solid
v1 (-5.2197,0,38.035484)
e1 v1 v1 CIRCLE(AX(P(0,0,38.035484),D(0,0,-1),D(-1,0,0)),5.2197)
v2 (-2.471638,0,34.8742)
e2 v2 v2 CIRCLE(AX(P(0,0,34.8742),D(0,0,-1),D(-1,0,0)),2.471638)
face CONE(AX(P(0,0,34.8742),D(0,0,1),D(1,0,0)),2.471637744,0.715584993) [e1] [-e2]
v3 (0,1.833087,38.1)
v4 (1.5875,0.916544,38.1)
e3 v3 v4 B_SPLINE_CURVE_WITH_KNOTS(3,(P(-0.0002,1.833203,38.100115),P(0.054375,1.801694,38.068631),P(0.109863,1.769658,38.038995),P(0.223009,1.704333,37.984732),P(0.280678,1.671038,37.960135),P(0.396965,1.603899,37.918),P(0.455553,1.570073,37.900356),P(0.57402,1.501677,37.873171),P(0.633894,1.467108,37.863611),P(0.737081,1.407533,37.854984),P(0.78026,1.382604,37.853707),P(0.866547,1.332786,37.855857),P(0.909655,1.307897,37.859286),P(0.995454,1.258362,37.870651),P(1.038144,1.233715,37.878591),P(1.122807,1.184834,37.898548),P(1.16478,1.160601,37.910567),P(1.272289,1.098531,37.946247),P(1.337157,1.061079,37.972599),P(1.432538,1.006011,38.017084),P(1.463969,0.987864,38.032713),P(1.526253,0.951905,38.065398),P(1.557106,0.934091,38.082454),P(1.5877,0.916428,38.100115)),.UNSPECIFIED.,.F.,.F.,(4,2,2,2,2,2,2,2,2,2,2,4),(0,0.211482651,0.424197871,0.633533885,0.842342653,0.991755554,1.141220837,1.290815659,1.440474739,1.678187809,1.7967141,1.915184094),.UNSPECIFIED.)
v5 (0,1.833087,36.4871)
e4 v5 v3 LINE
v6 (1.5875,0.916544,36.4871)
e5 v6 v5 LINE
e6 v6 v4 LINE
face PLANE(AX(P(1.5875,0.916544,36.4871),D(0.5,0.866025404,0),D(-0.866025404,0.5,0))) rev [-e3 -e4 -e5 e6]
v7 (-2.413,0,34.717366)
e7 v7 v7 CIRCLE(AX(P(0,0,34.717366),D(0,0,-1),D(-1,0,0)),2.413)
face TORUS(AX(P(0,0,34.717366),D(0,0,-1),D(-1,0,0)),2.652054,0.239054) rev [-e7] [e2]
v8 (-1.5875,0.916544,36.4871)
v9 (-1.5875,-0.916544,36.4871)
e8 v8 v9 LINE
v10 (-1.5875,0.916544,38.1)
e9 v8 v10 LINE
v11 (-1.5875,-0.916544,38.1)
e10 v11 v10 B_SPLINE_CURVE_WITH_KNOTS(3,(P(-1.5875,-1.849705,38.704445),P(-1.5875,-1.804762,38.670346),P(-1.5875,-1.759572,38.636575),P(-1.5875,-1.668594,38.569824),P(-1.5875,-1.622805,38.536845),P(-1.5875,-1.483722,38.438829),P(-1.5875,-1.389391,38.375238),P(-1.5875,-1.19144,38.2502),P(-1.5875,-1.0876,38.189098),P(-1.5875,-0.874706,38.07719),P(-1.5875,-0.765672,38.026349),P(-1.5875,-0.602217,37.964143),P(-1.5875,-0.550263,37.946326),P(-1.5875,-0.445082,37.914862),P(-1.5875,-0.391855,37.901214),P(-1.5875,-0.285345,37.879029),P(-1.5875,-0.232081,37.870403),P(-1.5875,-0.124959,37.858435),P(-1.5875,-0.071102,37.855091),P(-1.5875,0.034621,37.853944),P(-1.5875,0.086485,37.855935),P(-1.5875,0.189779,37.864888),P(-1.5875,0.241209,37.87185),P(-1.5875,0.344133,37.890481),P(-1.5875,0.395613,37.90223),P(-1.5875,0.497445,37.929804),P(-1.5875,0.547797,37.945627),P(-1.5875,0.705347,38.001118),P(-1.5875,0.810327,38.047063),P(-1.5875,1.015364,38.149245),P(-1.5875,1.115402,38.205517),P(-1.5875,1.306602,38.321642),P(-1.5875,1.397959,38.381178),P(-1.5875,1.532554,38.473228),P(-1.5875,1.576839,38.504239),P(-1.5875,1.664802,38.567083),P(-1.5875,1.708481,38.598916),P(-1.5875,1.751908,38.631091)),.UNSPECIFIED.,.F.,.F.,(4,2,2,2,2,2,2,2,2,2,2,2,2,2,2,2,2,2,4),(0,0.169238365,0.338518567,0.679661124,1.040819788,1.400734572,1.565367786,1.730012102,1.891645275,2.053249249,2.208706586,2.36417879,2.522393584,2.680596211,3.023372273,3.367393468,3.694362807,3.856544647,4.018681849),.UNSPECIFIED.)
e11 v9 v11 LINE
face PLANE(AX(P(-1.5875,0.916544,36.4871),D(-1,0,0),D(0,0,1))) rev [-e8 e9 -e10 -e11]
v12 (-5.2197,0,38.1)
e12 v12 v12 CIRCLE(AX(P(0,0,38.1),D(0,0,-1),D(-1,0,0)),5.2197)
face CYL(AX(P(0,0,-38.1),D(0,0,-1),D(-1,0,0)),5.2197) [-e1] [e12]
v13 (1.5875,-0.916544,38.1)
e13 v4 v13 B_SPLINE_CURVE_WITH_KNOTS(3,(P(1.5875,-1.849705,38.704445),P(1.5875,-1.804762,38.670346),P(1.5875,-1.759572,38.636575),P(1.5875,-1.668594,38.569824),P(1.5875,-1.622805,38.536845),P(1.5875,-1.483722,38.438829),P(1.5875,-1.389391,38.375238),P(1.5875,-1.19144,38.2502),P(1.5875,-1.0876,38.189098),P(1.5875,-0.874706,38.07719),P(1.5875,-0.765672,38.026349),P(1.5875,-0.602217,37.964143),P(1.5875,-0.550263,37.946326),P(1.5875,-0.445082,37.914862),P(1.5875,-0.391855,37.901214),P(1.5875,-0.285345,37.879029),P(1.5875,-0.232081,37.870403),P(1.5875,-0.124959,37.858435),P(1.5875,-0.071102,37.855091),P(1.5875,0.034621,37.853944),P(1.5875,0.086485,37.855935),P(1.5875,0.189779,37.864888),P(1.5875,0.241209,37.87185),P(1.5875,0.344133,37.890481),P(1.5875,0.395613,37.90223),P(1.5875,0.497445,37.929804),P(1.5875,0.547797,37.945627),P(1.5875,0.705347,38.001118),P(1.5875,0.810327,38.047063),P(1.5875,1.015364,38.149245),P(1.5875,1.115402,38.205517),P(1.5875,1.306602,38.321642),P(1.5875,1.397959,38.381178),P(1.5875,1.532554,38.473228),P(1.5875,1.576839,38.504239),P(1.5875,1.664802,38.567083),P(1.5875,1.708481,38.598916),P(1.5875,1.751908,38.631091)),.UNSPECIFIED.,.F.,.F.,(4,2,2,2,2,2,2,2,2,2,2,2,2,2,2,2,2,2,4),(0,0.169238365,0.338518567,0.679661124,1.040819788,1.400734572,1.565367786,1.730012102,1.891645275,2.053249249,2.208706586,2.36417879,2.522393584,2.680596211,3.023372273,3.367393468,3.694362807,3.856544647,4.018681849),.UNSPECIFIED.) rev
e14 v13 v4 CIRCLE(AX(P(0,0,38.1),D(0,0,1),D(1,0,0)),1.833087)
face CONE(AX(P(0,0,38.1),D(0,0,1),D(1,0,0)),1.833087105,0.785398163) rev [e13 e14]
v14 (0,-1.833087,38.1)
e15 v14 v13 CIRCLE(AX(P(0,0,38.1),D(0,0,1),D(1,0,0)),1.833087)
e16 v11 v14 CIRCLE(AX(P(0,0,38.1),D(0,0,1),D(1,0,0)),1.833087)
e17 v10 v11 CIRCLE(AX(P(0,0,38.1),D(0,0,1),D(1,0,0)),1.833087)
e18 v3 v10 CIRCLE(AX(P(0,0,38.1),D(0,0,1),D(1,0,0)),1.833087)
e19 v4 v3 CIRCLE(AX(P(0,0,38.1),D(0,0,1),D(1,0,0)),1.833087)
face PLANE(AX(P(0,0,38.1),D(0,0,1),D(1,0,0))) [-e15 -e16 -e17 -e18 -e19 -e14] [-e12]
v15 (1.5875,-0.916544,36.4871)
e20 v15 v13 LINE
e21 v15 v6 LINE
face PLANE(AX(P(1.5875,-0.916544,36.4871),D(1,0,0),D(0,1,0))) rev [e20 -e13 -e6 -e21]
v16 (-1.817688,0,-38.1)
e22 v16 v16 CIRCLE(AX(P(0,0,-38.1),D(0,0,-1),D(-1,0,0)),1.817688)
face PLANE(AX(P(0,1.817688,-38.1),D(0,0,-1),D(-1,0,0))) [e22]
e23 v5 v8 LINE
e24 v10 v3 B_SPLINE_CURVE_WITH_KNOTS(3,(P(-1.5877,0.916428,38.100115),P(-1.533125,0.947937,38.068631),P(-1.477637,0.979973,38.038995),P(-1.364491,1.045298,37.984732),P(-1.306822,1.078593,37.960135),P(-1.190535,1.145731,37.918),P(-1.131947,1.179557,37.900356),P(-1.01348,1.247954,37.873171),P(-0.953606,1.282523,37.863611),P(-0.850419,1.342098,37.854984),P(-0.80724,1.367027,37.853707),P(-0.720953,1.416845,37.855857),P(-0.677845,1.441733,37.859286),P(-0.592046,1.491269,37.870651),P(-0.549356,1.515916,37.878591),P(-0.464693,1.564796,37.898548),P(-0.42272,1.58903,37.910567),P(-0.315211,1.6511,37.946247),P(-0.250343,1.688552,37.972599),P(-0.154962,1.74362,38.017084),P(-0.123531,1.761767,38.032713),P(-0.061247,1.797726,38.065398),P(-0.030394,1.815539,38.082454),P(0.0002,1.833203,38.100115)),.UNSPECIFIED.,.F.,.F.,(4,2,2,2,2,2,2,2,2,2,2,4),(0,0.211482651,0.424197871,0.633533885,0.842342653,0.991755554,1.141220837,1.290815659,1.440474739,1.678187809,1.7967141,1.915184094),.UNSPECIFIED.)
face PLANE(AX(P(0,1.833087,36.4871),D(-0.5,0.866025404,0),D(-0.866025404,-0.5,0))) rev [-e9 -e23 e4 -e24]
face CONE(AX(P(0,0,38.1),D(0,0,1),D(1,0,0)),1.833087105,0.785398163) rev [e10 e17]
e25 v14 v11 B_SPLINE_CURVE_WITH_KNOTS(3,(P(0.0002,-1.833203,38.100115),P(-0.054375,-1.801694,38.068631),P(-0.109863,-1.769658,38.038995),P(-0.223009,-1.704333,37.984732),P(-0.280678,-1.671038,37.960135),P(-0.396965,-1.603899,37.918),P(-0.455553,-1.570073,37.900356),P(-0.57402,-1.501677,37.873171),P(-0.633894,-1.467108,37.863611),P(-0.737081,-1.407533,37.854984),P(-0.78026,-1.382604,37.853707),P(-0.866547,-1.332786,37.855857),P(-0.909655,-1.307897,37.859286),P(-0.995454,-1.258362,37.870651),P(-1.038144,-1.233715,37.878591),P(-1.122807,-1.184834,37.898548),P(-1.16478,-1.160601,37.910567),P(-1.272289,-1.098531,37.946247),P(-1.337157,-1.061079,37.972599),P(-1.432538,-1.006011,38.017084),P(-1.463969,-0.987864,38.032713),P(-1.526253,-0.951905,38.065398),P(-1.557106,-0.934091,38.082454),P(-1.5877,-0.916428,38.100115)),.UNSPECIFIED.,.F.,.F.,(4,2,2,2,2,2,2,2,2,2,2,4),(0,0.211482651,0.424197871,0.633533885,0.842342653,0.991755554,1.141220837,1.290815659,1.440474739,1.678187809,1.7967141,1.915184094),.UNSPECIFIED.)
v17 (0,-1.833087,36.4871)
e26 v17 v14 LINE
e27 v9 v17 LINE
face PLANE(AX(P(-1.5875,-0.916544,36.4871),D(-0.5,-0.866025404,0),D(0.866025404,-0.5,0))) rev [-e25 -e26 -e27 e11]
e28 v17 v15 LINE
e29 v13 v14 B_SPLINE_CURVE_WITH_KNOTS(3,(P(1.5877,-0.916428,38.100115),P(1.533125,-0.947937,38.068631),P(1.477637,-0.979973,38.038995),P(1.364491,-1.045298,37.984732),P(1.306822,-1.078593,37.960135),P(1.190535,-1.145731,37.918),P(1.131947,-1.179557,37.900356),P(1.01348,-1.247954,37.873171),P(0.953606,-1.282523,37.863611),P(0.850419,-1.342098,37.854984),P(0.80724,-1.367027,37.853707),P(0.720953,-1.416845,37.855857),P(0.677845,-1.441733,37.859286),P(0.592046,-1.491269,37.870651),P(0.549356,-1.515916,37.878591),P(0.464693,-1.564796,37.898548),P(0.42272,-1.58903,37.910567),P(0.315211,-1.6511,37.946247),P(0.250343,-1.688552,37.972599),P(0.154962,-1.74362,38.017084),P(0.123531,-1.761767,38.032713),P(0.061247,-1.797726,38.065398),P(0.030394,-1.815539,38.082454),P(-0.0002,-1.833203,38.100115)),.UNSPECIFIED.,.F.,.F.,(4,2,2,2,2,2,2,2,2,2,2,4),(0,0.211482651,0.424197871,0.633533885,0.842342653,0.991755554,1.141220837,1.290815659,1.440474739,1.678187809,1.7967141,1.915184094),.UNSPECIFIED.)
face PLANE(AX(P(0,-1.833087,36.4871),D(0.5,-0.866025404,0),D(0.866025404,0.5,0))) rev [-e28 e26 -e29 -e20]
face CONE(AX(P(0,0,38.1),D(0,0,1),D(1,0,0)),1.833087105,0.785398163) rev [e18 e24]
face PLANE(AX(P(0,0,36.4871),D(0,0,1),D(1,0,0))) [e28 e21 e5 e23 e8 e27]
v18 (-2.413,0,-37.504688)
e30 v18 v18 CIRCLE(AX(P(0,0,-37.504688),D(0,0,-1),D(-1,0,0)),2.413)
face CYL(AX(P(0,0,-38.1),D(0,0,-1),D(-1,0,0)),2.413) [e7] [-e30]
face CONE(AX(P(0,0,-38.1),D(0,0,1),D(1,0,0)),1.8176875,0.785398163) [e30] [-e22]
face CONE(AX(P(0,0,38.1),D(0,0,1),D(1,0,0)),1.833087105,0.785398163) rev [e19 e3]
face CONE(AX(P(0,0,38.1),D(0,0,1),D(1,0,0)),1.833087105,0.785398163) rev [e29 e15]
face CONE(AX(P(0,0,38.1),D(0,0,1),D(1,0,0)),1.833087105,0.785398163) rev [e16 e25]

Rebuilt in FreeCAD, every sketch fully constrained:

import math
import FreeCAD as App
import Part
import Sketcher
Q = App.Units.Quantity


def faces_at(feature, points):
    """Names of the faces that lie closest to the given points."""
    faces = feature.Shape.Faces
    near = lambda p: min(range(len(faces)), key=lambda i: faces[i].distToShape(Part.Vertex(*p))[0])
    return sorted({f"Face{near(p) + 1}" for p in points})

doc = App.newDocument("Part")
params = doc.addObject("Spreadsheet::Sheet", "Params")
for row, (alias, value) in enumerate([
    ("sketch1_height", "3 in"),
    ("revolution_angle", "360 deg"),
    ("pad1_length", "0.0635 in"),
    ("draft_angle", "45 deg"),
    ("pocket1_length", "0.0635 in"),
], start=1):
    params.set(f"A{row}", alias)
    params.set(f"B{row}", "=" + value)
    params.setAlias(f"B{row}", alias)

body = doc.addObject("PartDesign::Body", "Body")

sketch1 = body.newObject("Sketcher::SketchObject", "Sketch")
sketch1.AttachmentSupport = (doc.getObject("YZ_Plane"), [""])
sketch1.MapMode = "FlatFace"
sketch1.addGeometry([
    Part.LineSegment(App.Vector(2.47, 34.87, 0), App.Vector(5.22, 38.04, 0)),
    Part.LineSegment(App.Vector(5.22, 38.04, 0), App.Vector(5.22, 38.1, 0)),
    Part.LineSegment(App.Vector(5.22, 38.1, 0), App.Vector(0, 38.1, 0)),
    Part.LineSegment(App.Vector(0, 38.1, 0), App.Vector(0, -38.1, 0)),
    Part.LineSegment(App.Vector(0, -38.1, 0), App.Vector(1.82, -38.1, 0)),
    Part.LineSegment(App.Vector(1.82, -38.1, 0), App.Vector(2.41, -37.5, 0)),
    Part.LineSegment(App.Vector(2.41, -37.5, 0), App.Vector(2.41, 34.72, 0)),
    Part.ArcOfCircle(Part.Circle(App.Vector(2.65, 34.72, 0), App.Vector(0, 0, 1), 0.24), math.radians(139), math.radians(180)),
], False)
sketch1.addConstraint([
    Sketcher.Constraint("Coincident", 0, 2, 1, 1),
    Sketcher.Constraint("Coincident", 1, 2, 2, 1),
    Sketcher.Constraint("Coincident", 2, 2, 3, 1),
    Sketcher.Constraint("Coincident", 3, 2, 4, 1),
    Sketcher.Constraint("Coincident", 4, 2, 5, 1),
    Sketcher.Constraint("Coincident", 5, 2, 6, 1),
    Sketcher.Constraint("Tangent", 6, 2, 7, 2),
    Sketcher.Constraint("Tangent", 7, 1, 0, 1),
    Sketcher.Constraint("Vertical", 1),
    Sketcher.Constraint("Horizontal", 2),
    Sketcher.Constraint("Vertical", 3),
    Sketcher.Constraint("Horizontal", 4),
    Sketcher.Constraint("Vertical", 6),
    Sketcher.Constraint("Symmetric", 2, 2, 3, 2, -1, 1),
    Sketcher.Constraint("DistanceY", 3, 2, 3, 1, Q("3 in")),
    Sketcher.Constraint("Angle", 0, Q("49 deg")),
    Sketcher.Constraint("Angle", 5, Q("45 deg")),
    Sketcher.Constraint("DistanceX", 2, 2, 2, 1, Q("0.2055 in")),
    Sketcher.Constraint("DistanceX", -1, 1, 5, 2, Q("0.095 in")),
    Sketcher.Constraint("DistanceY", -1, 1, 7, 1, Q("1.373 in")),
    Sketcher.Constraint("Radius", 7, Q("0.239054 mm")),
    Sketcher.Constraint("Distance", 5, Q("0.841899 mm")),
])
sketch1.setExpression("Constraints[14]", "Params.sketch1_height")
revolution = body.newObject("PartDesign::Revolution", "Revolution")
revolution.Profile = sketch1
revolution.ReferenceAxis = (sketch1, ["V_Axis"])
revolution.setExpression("Angle", "Params.revolution_angle")
body2 = doc.addObject("PartDesign::Body", "Body001")

sketch2 = body2.newObject("Sketcher::SketchObject", "Sketch001")
sketch2.AttachmentSupport = (doc.getObject("XY_Plane001"), [""])
sketch2.MapMode = "FlatFace"
sketch2.AttachmentOffset = App.Placement(App.Vector(0, 0, 1.5 * 25.4), App.Rotation())
sketch2.addGeometry(Part.Circle(App.Vector(0, 0, 0), App.Vector(0, 0, 1), 1.8), False)
sketch2.addConstraint([
    Sketcher.Constraint("Coincident", 0, 3, -1, 1),
    Sketcher.Constraint("Diameter", 0, Q("3.666174 mm")),
])
pad1 = body2.newObject("PartDesign::Pad", "Pad")
pad1.Profile = sketch2
pad1.setExpression("Length", "Params.pad1_length")
pad1.Reversed = True
doc.recompute()

datumplane = body2.newObject("PartDesign::Plane", "DatumPlane")
datumplane.AttachmentSupport = (doc.getObject("XY_Plane001"), [""])
datumplane.MapMode = "FlatFace"
datumplane.AttachmentOffset = App.Placement(App.Vector(0, 0, 1.5 * 25.4), App.Rotation())
draft = body2.newObject("PartDesign::Draft", "Draft")
draft.Base = (pad1, faces_at(pad1, [(-1.833, 0, 37.294)]))
draft.NeutralPlane = (datumplane, [""])
draft.setExpression("Angle", "Params.draft_angle")
draft.Reversed = True
doc.recompute()

boolean = body.newObject("PartDesign::Boolean", "Boolean")
boolean.Type = "Cut"
boolean.addObjects([body2])

sketch3 = body.newObject("Sketcher::SketchObject", "Sketch002")
sketch3.AttachmentSupport = (doc.getObject("XY_Plane"), [""])
sketch3.MapMode = "FlatFace"
sketch3.AttachmentOffset = App.Placement(App.Vector(0, 0, 1.5 * 25.4), App.Rotation())
sketch3.addGeometry([
    Part.LineSegment(App.Vector(1.6, -0.9, 0), App.Vector(1.6, 0.9, 0)),
    Part.LineSegment(App.Vector(1.6, 0.9, 0), App.Vector(0, 1.8, 0)),
    Part.LineSegment(App.Vector(0, 1.8, 0), App.Vector(-1.6, 0.9, 0)),
    Part.LineSegment(App.Vector(-1.6, 0.9, 0), App.Vector(-1.6, -0.9, 0)),
    Part.LineSegment(App.Vector(-1.6, -0.9, 0), App.Vector(0, -1.8, 0)),
    Part.LineSegment(App.Vector(0, -1.8, 0), App.Vector(1.6, -0.9, 0)),
], False)
sketch3.addConstraint([
    Sketcher.Constraint("Coincident", 0, 2, 1, 1),
    Sketcher.Constraint("Coincident", 1, 2, 2, 1),
    Sketcher.Constraint("Coincident", 2, 2, 3, 1),
    Sketcher.Constraint("Coincident", 3, 2, 4, 1),
    Sketcher.Constraint("Coincident", 4, 2, 5, 1),
    Sketcher.Constraint("Coincident", 5, 2, 0, 1),
    Sketcher.Constraint("Vertical", 0),
    Sketcher.Constraint("Vertical", 3),
    Sketcher.Constraint("Symmetric", 0, 2, 3, 2, -1, 1),
    Sketcher.Constraint("Symmetric", 1, 2, 4, 2, -1, 1),
    Sketcher.Constraint("PointOnObject", 1, 2, -2),
    Sketcher.Constraint("Parallel", 2, 5),
    Sketcher.Constraint("Horizontal", 0, 2, 2, 2),
    Sketcher.Constraint("Angle", 1, Q("150 deg")),
    Sketcher.Constraint("DistanceX", -1, 1, 0, 2, Q("0.0625 in")),
    Sketcher.Constraint("DistanceY", 0, 1, 0, 2, Q("1.833087 mm")),
])
pocket1 = body.newObject("PartDesign::Pocket", "Pocket")
pocket1.Profile = sketch3
pocket1.setExpression("Length", "Params.pocket1_length")

doc.recompute()
